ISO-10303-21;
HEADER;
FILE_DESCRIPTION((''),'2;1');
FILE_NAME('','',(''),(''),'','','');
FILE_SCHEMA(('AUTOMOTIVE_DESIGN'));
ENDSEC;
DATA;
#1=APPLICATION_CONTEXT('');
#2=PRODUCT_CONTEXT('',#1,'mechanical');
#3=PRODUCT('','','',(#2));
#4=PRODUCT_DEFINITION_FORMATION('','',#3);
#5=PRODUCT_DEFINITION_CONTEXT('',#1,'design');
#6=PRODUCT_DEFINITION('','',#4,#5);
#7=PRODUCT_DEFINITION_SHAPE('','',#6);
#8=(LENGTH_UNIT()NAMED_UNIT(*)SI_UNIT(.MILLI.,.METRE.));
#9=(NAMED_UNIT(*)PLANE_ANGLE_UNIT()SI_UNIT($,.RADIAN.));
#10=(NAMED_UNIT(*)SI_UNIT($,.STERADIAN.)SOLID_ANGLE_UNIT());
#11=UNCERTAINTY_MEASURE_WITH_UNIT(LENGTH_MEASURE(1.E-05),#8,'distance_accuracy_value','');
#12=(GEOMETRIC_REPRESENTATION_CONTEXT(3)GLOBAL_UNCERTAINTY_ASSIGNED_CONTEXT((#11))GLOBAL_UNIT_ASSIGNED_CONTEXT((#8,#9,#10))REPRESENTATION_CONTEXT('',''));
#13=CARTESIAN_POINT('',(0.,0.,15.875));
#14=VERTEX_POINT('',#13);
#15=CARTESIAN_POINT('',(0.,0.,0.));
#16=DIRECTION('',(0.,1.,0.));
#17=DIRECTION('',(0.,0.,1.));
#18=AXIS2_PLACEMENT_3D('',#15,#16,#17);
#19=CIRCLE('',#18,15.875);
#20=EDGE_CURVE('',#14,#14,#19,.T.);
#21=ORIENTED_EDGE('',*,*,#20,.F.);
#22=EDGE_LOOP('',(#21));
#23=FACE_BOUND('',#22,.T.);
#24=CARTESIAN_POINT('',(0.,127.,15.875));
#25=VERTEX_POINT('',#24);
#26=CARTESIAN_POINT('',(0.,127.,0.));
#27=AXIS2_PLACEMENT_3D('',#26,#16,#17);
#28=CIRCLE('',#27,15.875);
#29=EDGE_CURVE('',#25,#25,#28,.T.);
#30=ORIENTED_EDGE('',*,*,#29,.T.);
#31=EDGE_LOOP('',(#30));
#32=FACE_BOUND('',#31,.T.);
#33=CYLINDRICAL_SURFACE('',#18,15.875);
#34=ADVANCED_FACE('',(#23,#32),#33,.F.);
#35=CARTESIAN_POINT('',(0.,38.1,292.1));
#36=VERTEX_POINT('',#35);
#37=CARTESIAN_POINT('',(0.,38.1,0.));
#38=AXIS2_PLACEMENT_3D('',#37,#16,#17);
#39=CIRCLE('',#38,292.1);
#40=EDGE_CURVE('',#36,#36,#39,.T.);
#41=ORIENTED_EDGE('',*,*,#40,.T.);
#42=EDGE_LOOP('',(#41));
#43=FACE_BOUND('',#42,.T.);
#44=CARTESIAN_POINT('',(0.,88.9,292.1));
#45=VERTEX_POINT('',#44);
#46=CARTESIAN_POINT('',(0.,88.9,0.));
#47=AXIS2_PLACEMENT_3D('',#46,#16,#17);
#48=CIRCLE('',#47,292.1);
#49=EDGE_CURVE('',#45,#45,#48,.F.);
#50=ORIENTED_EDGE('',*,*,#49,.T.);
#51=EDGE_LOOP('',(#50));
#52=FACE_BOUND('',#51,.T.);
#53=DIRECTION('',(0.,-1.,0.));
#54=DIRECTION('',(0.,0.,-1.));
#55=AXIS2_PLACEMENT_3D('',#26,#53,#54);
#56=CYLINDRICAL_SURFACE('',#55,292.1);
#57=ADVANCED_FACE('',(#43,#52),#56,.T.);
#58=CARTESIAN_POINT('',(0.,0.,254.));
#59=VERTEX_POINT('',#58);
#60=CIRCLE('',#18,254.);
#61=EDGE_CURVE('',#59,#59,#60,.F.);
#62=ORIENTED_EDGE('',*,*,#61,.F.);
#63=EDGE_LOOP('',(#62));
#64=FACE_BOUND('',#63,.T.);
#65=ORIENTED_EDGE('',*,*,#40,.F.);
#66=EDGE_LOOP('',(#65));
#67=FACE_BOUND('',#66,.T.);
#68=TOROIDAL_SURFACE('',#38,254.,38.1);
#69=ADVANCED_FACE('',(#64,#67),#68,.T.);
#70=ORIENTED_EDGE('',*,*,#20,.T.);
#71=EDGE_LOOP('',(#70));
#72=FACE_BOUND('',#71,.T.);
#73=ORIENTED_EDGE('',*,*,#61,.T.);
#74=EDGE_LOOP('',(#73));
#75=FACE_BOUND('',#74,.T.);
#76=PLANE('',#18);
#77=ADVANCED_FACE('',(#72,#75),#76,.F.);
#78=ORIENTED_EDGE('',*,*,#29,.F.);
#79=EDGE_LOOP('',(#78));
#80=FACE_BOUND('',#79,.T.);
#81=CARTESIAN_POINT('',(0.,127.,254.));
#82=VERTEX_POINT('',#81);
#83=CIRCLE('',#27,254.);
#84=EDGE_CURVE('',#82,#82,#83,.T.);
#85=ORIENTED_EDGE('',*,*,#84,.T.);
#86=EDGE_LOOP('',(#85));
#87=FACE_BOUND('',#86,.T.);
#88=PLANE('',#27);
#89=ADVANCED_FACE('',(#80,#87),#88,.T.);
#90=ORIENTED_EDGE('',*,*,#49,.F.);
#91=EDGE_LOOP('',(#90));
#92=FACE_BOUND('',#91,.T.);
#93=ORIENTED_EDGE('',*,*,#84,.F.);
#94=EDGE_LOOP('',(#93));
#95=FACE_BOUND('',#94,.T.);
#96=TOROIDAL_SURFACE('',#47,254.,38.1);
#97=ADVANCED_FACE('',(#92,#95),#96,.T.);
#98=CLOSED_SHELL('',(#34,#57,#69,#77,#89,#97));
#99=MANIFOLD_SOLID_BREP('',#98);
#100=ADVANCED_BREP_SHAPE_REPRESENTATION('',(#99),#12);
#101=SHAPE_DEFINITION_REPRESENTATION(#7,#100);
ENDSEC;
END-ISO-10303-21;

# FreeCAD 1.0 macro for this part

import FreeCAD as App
import Part
import Sketcher
from FreeCAD import Vector
Q = App.Units.Quantity


def edges_at(feature, points):
    """Names of the edges that pass closest to the given points."""
    edges = feature.Shape.Edges
    near = lambda p: min(range(len(edges)), key=lambda i: edges[i].distToShape(Part.Vertex(*p))[0])
    return sorted({f"Edge{near(p) + 1}" for p in points})

doc = App.newDocument("Part")
body = doc.addObject("PartDesign::Body", "Body")

sketch1 = body.newObject("Sketcher::SketchObject", "Sketch")
sketch1.AttachmentSupport = (doc.getObject("XZ_Plane"), [""])
sketch1.MapMode = "FlatFace"
sketch1.addGeometry(Part.Circle(Vector(0, 0, 0), Vector(0, 0, 1), 292), False)
sketch1.addConstraint([
    Sketcher.Constraint("Coincident", 0, 3, -1, 1),
    Sketcher.Constraint("Diameter", 0, Q("23 in")),
])
pad1 = body.newObject("PartDesign::Pad", "Pad")
pad1.Profile = sketch1
pad1.Length = Q("5 in")
pad1.Reversed = True
doc.recompute()

fillet = body.newObject("PartDesign::Fillet", "Fillet")
fillet.Base = (pad1, edges_at(pad1, [(-292.1, 0, 0), (-292.1, 127, 0)]))
fillet.Radius = Q("1.5 in")

sketch2 = body.newObject("Sketcher::SketchObject", "Sketch001")
sketch2.AttachmentSupport = (doc.getObject("XZ_Plane"), [""])
sketch2.MapMode = "FlatFace"
sketch2.AttachmentOffset = App.Placement(Vector(0, 0, -5 * 25.4), App.Rotation())
sketch2.addGeometry(Part.Circle(Vector(0, 0, 0), Vector(0, 0, 1), 16), False)
sketch2.addConstraint([
    Sketcher.Constraint("Coincident", 0, 3, -1, 1),
    Sketcher.Constraint("Diameter", 0, Q("1.25 in")),
])
pocket1 = body.newObject("PartDesign::Pocket", "Pocket")
pocket1.Profile = sketch2
pocket1.Type = "ThroughAll"
pocket1.Reversed = True

doc.recompute()
